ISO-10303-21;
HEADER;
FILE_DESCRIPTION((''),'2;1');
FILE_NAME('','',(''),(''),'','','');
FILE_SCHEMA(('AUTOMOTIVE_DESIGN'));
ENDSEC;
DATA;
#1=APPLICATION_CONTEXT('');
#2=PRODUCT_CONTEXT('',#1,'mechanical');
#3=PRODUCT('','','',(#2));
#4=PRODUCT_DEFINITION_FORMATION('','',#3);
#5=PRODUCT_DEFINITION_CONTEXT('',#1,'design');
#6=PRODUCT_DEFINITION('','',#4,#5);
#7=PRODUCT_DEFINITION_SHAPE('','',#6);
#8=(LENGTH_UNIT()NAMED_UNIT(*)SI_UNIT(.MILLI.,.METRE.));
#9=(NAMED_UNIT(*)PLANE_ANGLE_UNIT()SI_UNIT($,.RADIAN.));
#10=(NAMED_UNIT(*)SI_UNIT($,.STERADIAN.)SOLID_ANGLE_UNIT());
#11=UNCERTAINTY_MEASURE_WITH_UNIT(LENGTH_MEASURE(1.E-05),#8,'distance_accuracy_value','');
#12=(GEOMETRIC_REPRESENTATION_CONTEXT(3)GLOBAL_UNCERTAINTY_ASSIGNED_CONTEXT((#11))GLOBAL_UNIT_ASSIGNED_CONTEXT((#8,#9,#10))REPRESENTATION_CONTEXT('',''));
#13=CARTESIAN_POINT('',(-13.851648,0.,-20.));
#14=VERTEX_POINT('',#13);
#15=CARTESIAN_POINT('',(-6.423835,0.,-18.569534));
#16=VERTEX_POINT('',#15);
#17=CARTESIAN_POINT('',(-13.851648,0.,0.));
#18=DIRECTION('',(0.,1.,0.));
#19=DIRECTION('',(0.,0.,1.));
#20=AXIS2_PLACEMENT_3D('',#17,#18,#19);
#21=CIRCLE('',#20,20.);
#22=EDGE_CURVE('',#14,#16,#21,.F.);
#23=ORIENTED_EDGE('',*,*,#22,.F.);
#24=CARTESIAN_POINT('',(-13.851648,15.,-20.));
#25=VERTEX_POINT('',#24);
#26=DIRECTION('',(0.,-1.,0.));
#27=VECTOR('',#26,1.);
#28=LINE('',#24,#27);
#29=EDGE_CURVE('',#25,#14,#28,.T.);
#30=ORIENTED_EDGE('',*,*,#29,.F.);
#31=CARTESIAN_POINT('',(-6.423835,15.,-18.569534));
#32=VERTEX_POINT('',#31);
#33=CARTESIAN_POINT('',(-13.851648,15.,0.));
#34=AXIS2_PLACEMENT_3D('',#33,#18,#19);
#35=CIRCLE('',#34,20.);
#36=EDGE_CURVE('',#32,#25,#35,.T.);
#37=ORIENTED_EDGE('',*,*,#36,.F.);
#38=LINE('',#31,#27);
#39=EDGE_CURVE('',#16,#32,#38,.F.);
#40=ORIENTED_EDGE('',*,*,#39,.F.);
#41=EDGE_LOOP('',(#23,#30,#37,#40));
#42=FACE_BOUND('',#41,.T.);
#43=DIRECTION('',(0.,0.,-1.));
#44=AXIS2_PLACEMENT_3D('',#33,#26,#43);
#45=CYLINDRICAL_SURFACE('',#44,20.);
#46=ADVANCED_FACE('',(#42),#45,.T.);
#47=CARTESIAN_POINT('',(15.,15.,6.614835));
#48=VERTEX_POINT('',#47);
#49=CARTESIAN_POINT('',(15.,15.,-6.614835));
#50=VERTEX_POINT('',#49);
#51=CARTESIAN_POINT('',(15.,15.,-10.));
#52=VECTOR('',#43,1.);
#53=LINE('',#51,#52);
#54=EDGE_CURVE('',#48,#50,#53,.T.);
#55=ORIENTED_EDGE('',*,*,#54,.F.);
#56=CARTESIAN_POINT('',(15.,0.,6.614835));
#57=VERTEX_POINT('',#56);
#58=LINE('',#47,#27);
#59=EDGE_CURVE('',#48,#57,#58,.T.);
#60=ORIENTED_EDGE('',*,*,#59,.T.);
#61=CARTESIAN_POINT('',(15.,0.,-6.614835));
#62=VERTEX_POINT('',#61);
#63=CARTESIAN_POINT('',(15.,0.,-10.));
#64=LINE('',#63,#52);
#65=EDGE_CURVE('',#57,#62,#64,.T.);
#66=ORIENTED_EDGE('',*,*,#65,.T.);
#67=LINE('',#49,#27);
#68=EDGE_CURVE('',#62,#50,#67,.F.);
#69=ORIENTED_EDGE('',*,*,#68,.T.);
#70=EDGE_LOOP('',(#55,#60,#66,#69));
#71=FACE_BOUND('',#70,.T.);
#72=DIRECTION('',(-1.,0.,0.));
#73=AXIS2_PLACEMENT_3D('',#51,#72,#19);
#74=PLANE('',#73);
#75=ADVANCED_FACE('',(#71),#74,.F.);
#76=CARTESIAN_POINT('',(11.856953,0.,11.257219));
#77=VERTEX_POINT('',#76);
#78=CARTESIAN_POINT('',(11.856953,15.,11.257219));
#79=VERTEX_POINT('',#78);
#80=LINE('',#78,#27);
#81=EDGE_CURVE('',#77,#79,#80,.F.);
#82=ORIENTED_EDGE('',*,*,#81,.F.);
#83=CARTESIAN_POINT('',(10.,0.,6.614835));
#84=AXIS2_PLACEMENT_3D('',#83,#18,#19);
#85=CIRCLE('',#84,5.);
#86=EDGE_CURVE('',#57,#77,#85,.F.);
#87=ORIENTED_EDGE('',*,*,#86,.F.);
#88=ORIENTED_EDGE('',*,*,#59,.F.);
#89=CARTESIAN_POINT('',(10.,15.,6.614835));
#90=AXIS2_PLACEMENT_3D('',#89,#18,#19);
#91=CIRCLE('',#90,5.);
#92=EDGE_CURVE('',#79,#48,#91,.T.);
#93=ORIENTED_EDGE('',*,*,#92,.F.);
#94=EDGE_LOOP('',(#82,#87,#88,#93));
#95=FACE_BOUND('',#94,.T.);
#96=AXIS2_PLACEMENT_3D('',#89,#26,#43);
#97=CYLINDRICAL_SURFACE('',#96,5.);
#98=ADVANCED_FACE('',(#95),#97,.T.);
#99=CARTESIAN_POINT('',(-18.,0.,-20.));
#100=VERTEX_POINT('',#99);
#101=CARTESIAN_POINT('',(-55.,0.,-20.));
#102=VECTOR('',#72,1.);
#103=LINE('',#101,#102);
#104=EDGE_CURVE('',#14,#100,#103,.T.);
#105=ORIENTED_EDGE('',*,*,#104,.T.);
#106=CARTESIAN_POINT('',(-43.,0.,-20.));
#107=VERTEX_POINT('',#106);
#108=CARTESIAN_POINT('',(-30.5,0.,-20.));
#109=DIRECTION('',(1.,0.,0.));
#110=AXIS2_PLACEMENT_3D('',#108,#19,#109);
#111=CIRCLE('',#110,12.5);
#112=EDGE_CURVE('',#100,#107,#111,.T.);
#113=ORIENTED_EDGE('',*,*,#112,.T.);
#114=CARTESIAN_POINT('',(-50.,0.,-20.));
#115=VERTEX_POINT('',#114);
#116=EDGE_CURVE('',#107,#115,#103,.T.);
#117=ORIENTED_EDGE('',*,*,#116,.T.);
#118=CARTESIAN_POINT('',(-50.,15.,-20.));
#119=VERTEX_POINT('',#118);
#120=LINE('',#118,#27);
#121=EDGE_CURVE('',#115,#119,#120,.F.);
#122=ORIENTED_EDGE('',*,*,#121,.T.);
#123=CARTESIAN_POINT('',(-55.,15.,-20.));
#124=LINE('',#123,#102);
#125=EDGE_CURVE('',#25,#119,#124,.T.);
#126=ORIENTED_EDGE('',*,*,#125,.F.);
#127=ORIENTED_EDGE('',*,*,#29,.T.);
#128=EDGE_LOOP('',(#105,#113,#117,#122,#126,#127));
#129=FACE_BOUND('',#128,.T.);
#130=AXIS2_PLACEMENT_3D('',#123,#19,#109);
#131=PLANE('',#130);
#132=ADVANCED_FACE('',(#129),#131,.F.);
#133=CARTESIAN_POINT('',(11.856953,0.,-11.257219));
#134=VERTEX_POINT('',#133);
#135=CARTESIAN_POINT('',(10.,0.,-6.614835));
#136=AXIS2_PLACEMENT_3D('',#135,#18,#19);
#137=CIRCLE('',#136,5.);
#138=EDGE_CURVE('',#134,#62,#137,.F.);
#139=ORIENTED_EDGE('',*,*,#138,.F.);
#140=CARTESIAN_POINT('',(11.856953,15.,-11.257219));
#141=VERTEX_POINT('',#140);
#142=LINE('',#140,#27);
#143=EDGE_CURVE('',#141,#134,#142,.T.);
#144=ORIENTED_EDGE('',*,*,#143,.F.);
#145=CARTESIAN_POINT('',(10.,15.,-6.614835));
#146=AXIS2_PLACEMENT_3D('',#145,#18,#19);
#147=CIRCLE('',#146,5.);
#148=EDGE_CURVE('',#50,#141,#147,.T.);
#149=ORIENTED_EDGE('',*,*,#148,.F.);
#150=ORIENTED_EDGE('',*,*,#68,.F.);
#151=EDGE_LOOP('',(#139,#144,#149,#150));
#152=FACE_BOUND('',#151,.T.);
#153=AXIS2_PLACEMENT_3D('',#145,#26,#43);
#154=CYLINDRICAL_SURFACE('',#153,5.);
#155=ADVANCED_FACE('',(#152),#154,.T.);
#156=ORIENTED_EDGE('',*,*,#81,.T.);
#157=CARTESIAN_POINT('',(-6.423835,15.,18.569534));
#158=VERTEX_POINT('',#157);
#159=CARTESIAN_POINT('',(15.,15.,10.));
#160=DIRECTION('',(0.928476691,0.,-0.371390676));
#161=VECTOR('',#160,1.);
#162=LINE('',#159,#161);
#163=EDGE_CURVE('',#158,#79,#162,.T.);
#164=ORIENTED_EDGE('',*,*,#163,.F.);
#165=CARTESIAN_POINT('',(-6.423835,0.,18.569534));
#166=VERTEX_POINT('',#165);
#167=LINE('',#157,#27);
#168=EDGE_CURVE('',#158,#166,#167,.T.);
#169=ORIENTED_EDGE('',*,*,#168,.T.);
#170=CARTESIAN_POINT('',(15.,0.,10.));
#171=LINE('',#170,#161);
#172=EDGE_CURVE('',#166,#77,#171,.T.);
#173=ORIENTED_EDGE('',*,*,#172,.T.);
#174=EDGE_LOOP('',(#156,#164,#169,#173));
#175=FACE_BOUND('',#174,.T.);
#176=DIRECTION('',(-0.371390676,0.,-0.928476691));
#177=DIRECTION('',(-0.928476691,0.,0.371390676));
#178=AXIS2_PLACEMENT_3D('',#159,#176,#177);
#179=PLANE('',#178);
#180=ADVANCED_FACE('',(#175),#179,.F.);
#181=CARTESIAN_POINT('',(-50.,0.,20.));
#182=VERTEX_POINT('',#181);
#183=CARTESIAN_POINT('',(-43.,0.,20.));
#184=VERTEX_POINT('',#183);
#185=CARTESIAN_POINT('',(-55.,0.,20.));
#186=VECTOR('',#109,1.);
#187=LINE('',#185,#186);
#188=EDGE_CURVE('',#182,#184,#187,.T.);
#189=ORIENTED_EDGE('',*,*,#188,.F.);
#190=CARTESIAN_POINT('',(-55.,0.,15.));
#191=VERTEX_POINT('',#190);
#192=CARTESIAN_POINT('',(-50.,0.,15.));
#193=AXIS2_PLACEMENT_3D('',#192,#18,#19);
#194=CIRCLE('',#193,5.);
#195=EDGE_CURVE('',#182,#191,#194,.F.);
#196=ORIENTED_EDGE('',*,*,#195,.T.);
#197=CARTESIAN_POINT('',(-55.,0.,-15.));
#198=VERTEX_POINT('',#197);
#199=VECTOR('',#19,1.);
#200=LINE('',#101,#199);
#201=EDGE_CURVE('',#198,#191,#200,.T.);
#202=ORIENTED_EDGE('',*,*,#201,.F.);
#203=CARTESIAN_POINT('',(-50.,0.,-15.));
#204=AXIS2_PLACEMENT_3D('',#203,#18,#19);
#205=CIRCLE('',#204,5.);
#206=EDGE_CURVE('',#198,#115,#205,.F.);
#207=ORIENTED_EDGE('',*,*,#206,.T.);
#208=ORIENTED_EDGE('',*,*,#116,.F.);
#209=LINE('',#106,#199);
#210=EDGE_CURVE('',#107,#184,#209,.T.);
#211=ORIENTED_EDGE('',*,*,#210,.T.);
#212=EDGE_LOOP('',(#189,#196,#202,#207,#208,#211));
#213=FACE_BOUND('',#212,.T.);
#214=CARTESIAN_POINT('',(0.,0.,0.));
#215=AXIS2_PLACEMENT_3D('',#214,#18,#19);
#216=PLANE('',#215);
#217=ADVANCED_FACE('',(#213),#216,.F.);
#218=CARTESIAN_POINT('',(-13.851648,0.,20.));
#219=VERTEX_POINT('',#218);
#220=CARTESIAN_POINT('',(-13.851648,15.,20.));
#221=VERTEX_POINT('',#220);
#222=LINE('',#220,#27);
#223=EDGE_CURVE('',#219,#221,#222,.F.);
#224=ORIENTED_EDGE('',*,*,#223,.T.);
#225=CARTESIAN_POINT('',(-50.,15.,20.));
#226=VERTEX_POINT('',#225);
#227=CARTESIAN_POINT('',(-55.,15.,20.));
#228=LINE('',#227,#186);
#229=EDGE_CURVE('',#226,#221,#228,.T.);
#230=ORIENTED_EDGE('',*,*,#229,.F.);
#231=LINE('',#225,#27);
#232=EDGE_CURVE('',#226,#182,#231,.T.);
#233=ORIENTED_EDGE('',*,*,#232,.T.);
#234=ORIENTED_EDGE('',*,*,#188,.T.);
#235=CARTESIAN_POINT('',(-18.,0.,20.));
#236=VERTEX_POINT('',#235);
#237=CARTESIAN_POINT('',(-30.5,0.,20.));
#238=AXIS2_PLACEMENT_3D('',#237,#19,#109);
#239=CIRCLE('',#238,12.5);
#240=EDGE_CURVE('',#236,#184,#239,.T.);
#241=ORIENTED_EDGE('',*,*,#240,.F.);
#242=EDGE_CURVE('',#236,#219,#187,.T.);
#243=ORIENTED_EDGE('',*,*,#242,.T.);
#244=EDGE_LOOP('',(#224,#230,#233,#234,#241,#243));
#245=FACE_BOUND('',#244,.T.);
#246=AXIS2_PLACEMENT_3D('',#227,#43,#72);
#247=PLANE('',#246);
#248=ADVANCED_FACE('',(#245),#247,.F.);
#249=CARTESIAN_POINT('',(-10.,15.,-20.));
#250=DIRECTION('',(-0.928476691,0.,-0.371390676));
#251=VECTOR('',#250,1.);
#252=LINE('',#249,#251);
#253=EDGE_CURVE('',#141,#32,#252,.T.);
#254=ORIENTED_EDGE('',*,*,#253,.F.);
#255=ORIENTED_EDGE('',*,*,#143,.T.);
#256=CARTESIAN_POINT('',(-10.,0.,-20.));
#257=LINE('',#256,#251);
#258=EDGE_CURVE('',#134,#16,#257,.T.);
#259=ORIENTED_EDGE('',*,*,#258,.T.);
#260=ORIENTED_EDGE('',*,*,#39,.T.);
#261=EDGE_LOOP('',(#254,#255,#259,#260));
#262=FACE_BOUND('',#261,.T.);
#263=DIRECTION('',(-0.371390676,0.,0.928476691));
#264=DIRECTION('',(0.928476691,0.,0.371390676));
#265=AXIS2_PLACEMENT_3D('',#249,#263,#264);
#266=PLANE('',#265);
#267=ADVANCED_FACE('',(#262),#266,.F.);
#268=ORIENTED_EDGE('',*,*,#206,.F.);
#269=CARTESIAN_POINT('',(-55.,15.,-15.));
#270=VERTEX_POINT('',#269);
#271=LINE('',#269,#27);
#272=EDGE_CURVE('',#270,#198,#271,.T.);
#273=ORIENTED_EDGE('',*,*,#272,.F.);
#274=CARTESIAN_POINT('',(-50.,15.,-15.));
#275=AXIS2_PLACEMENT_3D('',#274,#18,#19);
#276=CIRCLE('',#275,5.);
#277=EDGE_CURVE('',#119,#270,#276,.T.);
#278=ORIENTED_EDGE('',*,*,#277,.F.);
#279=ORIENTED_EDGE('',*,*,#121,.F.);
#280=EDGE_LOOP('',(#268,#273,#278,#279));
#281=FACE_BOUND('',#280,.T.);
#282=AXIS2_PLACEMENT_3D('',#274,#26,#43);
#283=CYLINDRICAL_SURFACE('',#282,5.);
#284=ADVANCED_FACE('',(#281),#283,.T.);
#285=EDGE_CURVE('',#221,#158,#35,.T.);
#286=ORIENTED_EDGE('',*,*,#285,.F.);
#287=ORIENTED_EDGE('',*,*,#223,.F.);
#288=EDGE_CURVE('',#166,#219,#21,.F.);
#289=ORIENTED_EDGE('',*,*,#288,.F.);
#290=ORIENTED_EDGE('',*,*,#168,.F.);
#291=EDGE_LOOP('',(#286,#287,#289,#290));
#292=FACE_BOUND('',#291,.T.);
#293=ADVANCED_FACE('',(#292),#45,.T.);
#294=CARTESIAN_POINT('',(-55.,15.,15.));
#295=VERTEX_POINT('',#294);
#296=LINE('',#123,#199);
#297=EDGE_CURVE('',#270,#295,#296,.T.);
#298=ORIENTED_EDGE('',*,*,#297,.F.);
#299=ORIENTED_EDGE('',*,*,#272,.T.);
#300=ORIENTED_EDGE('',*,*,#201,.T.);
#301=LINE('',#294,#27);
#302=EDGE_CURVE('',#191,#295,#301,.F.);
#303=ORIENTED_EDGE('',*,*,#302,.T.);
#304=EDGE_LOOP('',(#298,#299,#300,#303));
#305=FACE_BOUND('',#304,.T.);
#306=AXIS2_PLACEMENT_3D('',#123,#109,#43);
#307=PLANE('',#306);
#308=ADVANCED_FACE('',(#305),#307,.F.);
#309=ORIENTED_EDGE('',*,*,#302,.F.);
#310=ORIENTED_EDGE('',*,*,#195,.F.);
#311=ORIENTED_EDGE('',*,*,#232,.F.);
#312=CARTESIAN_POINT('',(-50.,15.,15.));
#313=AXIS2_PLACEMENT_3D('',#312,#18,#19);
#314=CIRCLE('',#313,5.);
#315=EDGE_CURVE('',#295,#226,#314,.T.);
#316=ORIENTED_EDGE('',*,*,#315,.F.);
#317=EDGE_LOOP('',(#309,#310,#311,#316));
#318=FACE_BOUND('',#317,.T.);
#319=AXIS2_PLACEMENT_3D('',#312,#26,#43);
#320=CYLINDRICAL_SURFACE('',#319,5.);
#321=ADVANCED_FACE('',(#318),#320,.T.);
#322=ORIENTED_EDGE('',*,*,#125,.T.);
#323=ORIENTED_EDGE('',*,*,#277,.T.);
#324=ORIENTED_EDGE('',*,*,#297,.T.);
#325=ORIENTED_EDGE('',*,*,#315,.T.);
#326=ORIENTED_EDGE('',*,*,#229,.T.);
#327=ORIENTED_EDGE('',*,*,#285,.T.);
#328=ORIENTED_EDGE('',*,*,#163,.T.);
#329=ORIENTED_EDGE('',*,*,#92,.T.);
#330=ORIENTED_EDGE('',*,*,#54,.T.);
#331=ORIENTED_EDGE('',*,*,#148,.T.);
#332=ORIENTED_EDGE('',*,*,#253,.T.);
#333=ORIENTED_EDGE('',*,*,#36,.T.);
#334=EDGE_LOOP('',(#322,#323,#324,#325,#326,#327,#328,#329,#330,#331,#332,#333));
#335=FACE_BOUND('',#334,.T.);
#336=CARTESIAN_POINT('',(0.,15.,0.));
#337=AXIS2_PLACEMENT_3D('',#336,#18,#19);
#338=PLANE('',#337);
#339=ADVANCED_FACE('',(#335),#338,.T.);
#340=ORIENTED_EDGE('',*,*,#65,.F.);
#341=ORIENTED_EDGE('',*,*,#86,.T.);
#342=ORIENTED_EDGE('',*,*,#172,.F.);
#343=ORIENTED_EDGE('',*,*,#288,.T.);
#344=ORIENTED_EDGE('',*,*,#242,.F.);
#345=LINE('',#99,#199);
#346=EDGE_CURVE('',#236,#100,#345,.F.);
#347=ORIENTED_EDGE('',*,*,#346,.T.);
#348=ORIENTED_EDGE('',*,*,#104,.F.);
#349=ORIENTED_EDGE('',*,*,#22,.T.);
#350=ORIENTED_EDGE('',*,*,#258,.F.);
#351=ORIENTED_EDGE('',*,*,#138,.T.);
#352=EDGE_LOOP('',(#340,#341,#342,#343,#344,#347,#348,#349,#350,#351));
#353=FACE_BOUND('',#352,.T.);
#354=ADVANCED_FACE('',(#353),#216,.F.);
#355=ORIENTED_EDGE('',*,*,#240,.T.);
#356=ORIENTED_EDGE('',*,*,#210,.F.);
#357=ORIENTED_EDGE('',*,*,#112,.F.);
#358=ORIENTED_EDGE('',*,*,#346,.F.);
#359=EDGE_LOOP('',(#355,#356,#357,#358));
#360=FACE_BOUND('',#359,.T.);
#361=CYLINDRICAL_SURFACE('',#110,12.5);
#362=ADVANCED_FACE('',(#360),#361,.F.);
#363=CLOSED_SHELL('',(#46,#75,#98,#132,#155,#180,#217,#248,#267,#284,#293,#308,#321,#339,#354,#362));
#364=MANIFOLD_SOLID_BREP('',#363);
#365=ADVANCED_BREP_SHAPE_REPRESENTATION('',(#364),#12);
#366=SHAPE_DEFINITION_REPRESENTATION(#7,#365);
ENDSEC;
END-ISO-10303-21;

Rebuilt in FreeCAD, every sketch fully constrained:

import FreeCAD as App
import Part
import Sketcher

V = App.Vector


def edges_at(feature, points):
    """Names of the edges that pass closest to the given points."""
    edges = feature.Shape.Edges
    near = lambda p: min(range(len(edges)), key=lambda i: edges[i].distToShape(Part.Vertex(*p))[0])
    return sorted({f"Edge{near(p) + 1}" for p in points})

doc = App.newDocument("Part")
body = doc.addObject("PartDesign::Body", "Body")

# Sketch on XZ plane
sketch1 = body.newObject("Sketcher::SketchObject", "Sketch")
sketch1.AttachmentSupport = (doc.getObject("XZ_Plane"), [""])
sketch1.MapMode = "FlatFace"
sketch1.addGeometry([
    Part.LineSegment(V(15, -10, 0), V(-10, -20, 0)),  # 0
    Part.LineSegment(V(-10, -20, 0), V(-55, -20, 0)),  # 1
    Part.LineSegment(V(-55, -20, 0), V(-55, 20, 0)),  # 2
    Part.LineSegment(V(-55, 20, 0), V(-10, 20, 0)),  # 3
    Part.LineSegment(V(-10, 20, 0), V(15, 10, 0)),  # 4
    Part.LineSegment(V(15, 10, 0), V(15, -10, 0)),  # 5
], False)
sketch1.addConstraint([
    Sketcher.Constraint("Coincident", 0, 2, 1, 1),
    Sketcher.Constraint("Coincident", 1, 2, 2, 1),
    Sketcher.Constraint("Coincident", 2, 2, 3, 1),
    Sketcher.Constraint("Coincident", 3, 2, 4, 1),
    Sketcher.Constraint("Coincident", 4, 2, 5, 1),
    Sketcher.Constraint("Coincident", 5, 2, 0, 1),
    Sketcher.Constraint("Horizontal", 1),
    Sketcher.Constraint("Vertical", 2),
    Sketcher.Constraint("Horizontal", 3),
    Sketcher.Constraint("Vertical", 5),
    Sketcher.Constraint("Symmetric", 0, 2, 3, 2, -1),
    Sketcher.Constraint("Equal", 0, 4),
    Sketcher.Constraint("DistanceX", 1, 2, 1, 1, 45.0),
    Sketcher.Constraint("DistanceY", 2, 1, 2, 2, 40.0),
    Sketcher.Constraint("DistanceY", 5, 2, 5, 1, 20.0),
    Sketcher.Constraint("DistanceX", 0, 2, -1, 1, 10.0),
    Sketcher.Constraint("DistanceX", -1, 1, 4, 2, 15.0),
])
pad1 = body.newObject("PartDesign::Pad", "Pad")
pad1.Profile = sketch1
pad1.Length = 15
pad1.Reversed = True

# Sketch on XY plane
sketch2 = body.newObject("Sketcher::SketchObject", "Sketch001")
sketch2.AttachmentSupport = (doc.getObject("XY_Plane"), [""])
sketch2.MapMode = "FlatFace"
sketch2.addGeometry(Part.Circle(V(-30.5, 0, 0), V(0, 0, 1), 12.5), False)
sketch2.addConstraint([
    Sketcher.Constraint("PointOnObject", 0, 3, -1),
    Sketcher.Constraint("Diameter", 0, 25.0),
    Sketcher.Constraint("DistanceX", 0, 3, -1, 1, 30.5),
])
pocket1 = body.newObject("PartDesign::Pocket", "Pocket")
pocket1.Profile = sketch2
pocket1.Type = "ThroughAll"
pocket1.Midplane = True
doc.recompute()

fillet = body.newObject("PartDesign::Fillet", "Fillet")
fillet.Base = (pocket1, edges_at(pocket1, [
    (-55, 7.5, 20),
    (-55, 7.5, -20),
    (15, 7.5, -10),
    (15, 7.5, 10),
]))
fillet.Radius = 5
doc.recompute()

fillet2 = body.newObject("PartDesign::Fillet", "Fillet001")
fillet2.Base = (fillet, edges_at(fillet, [(-10, 7.5, 20), (-10, 7.5, -20)]))
fillet2.Radius = 20

doc.recompute()
